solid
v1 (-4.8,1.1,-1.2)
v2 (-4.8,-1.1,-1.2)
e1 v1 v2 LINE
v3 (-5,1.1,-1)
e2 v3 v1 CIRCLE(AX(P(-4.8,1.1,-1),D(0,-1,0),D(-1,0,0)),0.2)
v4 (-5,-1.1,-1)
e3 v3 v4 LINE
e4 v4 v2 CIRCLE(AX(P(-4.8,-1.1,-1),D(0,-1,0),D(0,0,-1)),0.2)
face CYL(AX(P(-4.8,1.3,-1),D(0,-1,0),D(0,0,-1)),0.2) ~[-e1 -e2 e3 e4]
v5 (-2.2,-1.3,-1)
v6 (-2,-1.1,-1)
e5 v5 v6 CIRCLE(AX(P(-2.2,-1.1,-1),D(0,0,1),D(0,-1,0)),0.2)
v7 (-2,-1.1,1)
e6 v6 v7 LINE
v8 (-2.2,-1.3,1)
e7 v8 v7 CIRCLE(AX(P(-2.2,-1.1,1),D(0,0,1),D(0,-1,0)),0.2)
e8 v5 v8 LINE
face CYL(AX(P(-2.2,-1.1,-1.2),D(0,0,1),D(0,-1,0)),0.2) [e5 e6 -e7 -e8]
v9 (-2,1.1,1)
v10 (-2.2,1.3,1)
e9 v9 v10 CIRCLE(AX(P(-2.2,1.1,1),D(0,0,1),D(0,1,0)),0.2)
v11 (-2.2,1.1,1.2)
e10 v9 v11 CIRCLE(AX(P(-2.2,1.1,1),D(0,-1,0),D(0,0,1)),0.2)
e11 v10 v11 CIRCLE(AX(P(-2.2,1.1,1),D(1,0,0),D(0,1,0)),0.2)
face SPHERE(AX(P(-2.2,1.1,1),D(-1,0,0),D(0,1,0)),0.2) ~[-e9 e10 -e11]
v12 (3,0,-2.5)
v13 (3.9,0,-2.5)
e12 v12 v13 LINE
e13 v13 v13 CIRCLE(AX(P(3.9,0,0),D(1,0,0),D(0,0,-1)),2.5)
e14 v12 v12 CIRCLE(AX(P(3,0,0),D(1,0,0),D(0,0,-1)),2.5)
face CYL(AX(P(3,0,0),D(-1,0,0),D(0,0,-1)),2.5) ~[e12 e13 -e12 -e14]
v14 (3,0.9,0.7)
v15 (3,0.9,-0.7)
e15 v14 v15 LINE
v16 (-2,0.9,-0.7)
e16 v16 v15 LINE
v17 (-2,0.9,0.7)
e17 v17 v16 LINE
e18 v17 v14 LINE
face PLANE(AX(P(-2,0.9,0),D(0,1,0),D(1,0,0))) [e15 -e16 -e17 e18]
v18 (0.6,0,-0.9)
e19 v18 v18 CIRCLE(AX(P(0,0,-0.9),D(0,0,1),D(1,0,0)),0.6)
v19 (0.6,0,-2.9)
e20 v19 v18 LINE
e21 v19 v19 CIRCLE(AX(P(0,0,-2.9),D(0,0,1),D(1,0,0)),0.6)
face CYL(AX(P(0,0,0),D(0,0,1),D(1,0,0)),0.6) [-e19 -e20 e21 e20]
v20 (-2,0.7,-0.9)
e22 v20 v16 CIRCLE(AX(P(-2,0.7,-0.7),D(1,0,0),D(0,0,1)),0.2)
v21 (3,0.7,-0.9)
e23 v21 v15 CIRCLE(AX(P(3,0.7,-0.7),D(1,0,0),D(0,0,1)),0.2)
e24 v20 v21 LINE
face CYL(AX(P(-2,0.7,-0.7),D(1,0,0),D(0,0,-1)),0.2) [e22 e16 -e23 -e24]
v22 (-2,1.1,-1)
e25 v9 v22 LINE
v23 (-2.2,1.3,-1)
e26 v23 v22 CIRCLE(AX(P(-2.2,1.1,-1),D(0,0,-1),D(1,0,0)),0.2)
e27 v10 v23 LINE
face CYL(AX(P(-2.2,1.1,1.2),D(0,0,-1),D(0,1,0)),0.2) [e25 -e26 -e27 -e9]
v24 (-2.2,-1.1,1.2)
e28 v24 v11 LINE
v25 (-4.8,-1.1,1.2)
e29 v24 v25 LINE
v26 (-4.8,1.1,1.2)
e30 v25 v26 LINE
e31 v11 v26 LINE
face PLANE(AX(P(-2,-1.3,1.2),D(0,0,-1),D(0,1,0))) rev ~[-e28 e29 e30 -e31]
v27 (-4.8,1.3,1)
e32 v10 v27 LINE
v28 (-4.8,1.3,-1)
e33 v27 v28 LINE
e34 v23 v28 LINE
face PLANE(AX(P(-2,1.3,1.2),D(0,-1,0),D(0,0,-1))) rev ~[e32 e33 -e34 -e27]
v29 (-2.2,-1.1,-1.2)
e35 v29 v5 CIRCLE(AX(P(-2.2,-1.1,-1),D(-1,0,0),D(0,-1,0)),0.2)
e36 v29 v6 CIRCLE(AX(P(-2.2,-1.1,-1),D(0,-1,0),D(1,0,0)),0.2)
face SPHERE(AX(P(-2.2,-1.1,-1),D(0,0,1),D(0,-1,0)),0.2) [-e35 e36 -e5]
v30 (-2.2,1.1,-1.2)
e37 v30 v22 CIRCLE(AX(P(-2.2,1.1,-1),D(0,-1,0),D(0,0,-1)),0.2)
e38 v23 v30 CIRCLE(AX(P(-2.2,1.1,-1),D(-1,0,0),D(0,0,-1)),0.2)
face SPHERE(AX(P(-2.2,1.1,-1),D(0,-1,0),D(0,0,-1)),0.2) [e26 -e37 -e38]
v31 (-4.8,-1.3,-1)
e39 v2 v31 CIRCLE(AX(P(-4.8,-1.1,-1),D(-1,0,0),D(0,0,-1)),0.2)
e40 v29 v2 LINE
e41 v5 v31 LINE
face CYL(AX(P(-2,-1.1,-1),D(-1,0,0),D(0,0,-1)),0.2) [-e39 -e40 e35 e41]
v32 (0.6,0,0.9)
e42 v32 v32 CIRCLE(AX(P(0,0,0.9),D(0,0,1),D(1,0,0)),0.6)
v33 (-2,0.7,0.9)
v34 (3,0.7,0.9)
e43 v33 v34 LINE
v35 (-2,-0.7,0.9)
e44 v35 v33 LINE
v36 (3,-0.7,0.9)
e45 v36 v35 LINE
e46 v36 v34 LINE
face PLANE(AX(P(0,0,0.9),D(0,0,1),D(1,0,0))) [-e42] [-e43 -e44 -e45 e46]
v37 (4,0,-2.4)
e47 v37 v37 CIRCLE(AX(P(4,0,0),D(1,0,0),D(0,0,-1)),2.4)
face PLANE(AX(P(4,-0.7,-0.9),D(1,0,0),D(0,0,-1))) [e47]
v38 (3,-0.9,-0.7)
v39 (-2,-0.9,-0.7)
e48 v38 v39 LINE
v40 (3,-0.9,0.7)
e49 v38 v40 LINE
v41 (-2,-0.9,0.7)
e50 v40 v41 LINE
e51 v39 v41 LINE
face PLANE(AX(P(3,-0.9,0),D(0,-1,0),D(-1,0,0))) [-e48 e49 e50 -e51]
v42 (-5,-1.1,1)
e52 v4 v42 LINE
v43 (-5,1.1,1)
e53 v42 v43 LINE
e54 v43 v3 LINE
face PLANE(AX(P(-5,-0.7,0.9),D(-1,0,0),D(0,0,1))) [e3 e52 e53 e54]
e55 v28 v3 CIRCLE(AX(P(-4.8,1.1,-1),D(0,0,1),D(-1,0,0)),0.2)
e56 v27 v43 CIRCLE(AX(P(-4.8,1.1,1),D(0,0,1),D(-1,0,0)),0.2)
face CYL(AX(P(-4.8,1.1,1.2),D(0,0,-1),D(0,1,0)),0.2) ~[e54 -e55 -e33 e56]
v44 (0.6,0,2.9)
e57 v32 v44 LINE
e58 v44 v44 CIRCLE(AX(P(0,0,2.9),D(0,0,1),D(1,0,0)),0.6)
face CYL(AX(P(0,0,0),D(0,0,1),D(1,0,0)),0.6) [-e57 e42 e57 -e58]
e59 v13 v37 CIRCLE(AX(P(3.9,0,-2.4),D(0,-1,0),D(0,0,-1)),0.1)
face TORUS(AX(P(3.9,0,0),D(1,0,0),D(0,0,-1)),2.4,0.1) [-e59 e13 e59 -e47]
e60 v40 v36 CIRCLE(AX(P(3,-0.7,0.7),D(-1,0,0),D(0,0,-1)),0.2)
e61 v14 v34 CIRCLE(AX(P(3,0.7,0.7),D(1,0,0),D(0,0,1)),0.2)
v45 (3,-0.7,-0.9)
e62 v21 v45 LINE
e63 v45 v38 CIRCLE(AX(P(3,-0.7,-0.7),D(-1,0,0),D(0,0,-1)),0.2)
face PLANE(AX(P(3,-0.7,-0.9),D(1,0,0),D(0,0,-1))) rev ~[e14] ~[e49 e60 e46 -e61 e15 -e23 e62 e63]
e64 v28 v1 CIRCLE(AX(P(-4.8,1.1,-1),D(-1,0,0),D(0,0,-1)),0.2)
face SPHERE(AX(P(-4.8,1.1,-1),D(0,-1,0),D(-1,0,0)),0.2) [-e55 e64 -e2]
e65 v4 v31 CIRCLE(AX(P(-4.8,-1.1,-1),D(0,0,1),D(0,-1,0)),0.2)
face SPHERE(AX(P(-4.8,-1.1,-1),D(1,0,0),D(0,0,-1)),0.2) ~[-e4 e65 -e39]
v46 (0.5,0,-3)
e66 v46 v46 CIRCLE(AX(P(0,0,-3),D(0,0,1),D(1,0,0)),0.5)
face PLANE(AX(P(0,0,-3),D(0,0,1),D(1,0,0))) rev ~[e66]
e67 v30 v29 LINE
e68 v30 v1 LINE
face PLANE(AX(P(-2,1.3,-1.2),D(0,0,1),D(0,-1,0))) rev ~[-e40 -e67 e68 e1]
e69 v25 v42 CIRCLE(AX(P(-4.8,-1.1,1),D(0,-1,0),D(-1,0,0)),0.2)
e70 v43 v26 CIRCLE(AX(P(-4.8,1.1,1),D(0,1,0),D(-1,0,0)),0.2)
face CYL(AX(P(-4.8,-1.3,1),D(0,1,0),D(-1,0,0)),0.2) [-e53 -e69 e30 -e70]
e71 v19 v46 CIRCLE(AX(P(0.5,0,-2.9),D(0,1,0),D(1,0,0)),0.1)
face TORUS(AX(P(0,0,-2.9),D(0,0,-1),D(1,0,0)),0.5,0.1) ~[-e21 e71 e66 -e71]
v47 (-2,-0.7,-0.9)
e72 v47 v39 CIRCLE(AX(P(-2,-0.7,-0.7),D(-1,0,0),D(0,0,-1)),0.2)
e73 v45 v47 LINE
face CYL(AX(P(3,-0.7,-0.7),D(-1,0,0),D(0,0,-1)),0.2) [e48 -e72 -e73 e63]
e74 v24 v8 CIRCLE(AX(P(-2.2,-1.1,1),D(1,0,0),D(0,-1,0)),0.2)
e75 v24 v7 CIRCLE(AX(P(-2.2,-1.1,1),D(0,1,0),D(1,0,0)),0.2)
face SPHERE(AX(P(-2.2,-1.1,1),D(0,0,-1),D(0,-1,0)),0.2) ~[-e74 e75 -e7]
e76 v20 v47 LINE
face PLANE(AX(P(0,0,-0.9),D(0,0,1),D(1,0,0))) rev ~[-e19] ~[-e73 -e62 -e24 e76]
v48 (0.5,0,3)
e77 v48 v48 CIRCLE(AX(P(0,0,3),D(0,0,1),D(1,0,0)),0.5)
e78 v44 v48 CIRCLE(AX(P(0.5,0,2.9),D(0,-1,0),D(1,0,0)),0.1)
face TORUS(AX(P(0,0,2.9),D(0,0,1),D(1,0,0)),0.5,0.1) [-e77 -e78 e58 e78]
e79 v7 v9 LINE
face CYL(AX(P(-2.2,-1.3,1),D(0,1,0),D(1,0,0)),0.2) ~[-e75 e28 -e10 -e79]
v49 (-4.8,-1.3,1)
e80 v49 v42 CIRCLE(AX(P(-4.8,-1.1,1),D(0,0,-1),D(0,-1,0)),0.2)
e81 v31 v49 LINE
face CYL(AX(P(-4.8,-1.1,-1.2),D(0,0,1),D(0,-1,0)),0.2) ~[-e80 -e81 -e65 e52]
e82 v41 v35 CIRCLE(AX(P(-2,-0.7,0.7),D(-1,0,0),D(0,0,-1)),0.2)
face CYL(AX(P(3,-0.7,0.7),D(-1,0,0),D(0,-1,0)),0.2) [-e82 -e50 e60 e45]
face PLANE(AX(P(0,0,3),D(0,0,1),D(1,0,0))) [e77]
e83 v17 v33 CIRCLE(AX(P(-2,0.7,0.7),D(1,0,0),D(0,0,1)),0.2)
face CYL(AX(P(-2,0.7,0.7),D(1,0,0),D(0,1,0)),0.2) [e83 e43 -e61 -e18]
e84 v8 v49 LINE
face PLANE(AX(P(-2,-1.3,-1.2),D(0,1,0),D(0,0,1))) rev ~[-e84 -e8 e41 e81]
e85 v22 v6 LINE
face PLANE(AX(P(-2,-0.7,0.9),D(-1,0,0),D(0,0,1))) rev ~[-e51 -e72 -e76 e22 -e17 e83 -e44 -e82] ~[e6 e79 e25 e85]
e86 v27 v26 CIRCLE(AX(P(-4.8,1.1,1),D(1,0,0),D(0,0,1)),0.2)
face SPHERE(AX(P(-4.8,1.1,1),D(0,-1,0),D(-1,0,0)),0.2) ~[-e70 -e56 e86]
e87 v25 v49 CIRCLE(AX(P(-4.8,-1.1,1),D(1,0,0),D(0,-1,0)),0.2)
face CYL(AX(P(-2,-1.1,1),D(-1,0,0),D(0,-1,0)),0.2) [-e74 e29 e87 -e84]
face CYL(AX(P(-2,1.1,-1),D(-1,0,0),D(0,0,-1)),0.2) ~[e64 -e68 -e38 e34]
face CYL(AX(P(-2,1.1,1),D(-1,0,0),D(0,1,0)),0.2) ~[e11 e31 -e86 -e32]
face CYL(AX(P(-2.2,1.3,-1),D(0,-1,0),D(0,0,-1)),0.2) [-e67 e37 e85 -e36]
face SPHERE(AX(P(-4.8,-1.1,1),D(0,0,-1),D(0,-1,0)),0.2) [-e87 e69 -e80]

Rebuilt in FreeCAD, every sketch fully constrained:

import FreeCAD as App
import Part
import Sketcher
Q = App.Units.Quantity


def edges_at(feature, points):
    """Names of the edges that pass closest to the given points."""
    edges = feature.Shape.Edges
    near = lambda p: min(range(len(edges)), key=lambda i: edges[i].distToShape(Part.Vertex(*p))[0])
    return sorted({f"Edge{near(p) + 1}" for p in points})

doc = App.newDocument("Part")
body = doc.addObject("PartDesign::Body", "Body")

# Sketch on XY plane
sketch1 = doc.addObject("Sketcher::SketchObject", "Sketch")
body.addObject(sketch1)
sketch1.AttachmentSupport = (doc.XY_Plane, [""])
sketch1.MapMode = "FlatFace"
sketch1.addGeometry(Part.Circle(App.Vector(0, 0, 0), App.Vector(0, 0, 1), 0.6), False)
sketch1.addConstraint(Sketcher.Constraint("Coincident", 0, 3, -1, 1))
sketch1.addConstraint(Sketcher.Constraint("Diameter", 0, Q("1.2 mm")))
pad1 = doc.addObject("PartDesign::Pad", "Pad")
body.addObject(pad1)
pad1.Profile = sketch1
pad1.Length = 6
pad1.Midplane = True

# Sketch on XY plane
sketch2 = doc.addObject("Sketcher::SketchObject", "Sketch001")
body.addObject(sketch2)
sketch2.AttachmentSupport = (doc.XY_Plane, [""])
sketch2.MapMode = "FlatFace"
sketch2.addGeometry(Part.LineSegment(App.Vector(-2, 0.9, 0), App.Vector(-2, -0.9, 0)), False)
sketch2.addGeometry(Part.LineSegment(App.Vector(-2, -0.9, 0), App.Vector(3, -0.9, 0)), False)
sketch2.addGeometry(Part.LineSegment(App.Vector(3, -0.9, 0), App.Vector(3, 0.9, 0)), False)
sketch2.addGeometry(Part.LineSegment(App.Vector(3, 0.9, 0), App.Vector(-2, 0.9, 0)), False)
sketch2.addConstraint(Sketcher.Constraint("Coincident", 0, 2, 1, 1))
sketch2.addConstraint(Sketcher.Constraint("Coincident", 1, 2, 2, 1))
sketch2.addConstraint(Sketcher.Constraint("Coincident", 2, 2, 3, 1))
sketch2.addConstraint(Sketcher.Constraint("Coincident", 3, 2, 0, 1))
sketch2.addConstraint(Sketcher.Constraint("Vertical", 0))
sketch2.addConstraint(Sketcher.Constraint("Horizontal", 1))
sketch2.addConstraint(Sketcher.Constraint("Vertical", 2))
sketch2.addConstraint(Sketcher.Constraint("Horizontal", 3))
sketch2.addConstraint(Sketcher.Constraint("DistanceX", 0, 2, -1, 1, Q("2 mm")))
sketch2.addConstraint(Sketcher.Constraint("DistanceX", -1, 1, 1, 2, Q("3 mm")))
sketch2.addConstraint(Sketcher.Constraint("DistanceY", 0, 2, -1, 1, Q("0.9 mm")))
sketch2.addConstraint(Sketcher.Constraint("DistanceY", -1, 1, 2, 2, Q("0.9 mm")))
pad2 = doc.addObject("PartDesign::Pad", "Pad001")
body.addObject(pad2)
pad2.Profile = sketch2
pad2.Length = 1.8
pad2.Midplane = True
doc.recompute()

fillet = doc.addObject("PartDesign::Fillet", "Fillet")
body.addObject(fillet)
fillet.Base = (pad2, edges_at(pad2, [
    (0.5, 0.9, 0.9),
    (0.5, -0.9, 0.9),
    (0.5, 0.9, -0.9),
    (0.5, -0.9, -0.9),
]))
fillet.Radius = 0.2

# Sketch on YZ plane
sketch3 = doc.addObject("Sketcher::SketchObject", "Sketch002")
body.addObject(sketch3)
sketch3.AttachmentSupport = (doc.YZ_Plane, [""])
sketch3.MapMode = "FlatFace"
sketch3.AttachmentOffset = App.Placement(App.Vector(0, 0, 3), App.Rotation())
sketch3.addGeometry(Part.Circle(App.Vector(0, 0, 0), App.Vector(0, 0, 1), 2.5), False)
sketch3.addConstraint(Sketcher.Constraint("Coincident", 0, 3, -1, 1))
sketch3.addConstraint(Sketcher.Constraint("Diameter", 0, Q("5 mm")))
pad3 = doc.addObject("PartDesign::Pad", "Pad002")
body.addObject(pad3)
pad3.Profile = sketch3
pad3.Length = 1

# Sketch on YZ plane
sketch4 = doc.addObject("Sketcher::SketchObject", "Sketch003")
body.addObject(sketch4)
sketch4.AttachmentSupport = (doc.YZ_Plane, [""])
sketch4.MapMode = "FlatFace"
sketch4.AttachmentOffset = App.Placement(App.Vector(0, 0, -2), App.Rotation())
sketch4.addGeometry(Part.LineSegment(App.Vector(1.3, -1.2, 0), App.Vector(-1.3, -1.2, 0)), False)
sketch4.addGeometry(Part.LineSegment(App.Vector(-1.3, -1.2, 0), App.Vector(-1.3, 1.2, 0)), False)
sketch4.addGeometry(Part.LineSegment(App.Vector(-1.3, 1.2, 0), App.Vector(1.3, 1.2, 0)), False)
sketch4.addGeometry(Part.LineSegment(App.Vector(1.3, 1.2, 0), App.Vector(1.3, -1.2, 0)), False)
sketch4.addConstraint(Sketcher.Constraint("Coincident", 0, 2, 1, 1))
sketch4.addConstraint(Sketcher.Constraint("Coincident", 1, 2, 2, 1))
sketch4.addConstraint(Sketcher.Constraint("Coincident", 2, 2, 3, 1))
sketch4.addConstraint(Sketcher.Constraint("Coincident", 3, 2, 0, 1))
sketch4.addConstraint(Sketcher.Constraint("Horizontal", 0))
sketch4.addConstraint(Sketcher.Constraint("Vertical", 1))
sketch4.addConstraint(Sketcher.Constraint("Horizontal", 2))
sketch4.addConstraint(Sketcher.Constraint("Vertical", 3))
sketch4.addConstraint(Sketcher.Constraint("Symmetric", 0, 2, 2, 2, -1, 1))
sketch4.addConstraint(Sketcher.Constraint("DistanceX", 0, 2, 0, 1, Q("2.6 mm")))
sketch4.addConstraint(Sketcher.Constraint("DistanceY", 1, 1, 1, 2, Q("2.4 mm")))
pad4 = doc.addObject("PartDesign::Pad", "Pad003")
body.addObject(pad4)
pad4.Profile = sketch4
pad4.Length = 3
pad4.Reversed = True
doc.recompute()

fillet2 = doc.addObject("PartDesign::Fillet", "Fillet001")
body.addObject(fillet2)
fillet2.Base = (pad4, edges_at(pad4, [
    (-2, -1.3, 0),
    (-3.5, -1.3, -1.2),
    (-2, 0, -1.2),
    (-5, 0, -1.2),
    (-5, -1.3, 0),
    (-3.5, -1.3, 1.2),
    (-5, 0, 1.2),
    (-5, 1.3, 0),
    (-3.5, 1.3, 1.2),
    (-3.5, 1.3, -1.2),
    (-2, 1.3, 0),
    (-2, 0, 1.2),
]))
fillet2.Radius = 0.2
doc.recompute()

fillet3 = doc.addObject("PartDesign::Fillet", "Fillet002")
body.addObject(fillet3)
fillet3.Base = (fillet2, edges_at(fillet2, [(4, 0, 2.5), (-0.6, 0, 3), (-0.6, 0, -3)]))
fillet3.Radius = 0.1

doc.recompute()
